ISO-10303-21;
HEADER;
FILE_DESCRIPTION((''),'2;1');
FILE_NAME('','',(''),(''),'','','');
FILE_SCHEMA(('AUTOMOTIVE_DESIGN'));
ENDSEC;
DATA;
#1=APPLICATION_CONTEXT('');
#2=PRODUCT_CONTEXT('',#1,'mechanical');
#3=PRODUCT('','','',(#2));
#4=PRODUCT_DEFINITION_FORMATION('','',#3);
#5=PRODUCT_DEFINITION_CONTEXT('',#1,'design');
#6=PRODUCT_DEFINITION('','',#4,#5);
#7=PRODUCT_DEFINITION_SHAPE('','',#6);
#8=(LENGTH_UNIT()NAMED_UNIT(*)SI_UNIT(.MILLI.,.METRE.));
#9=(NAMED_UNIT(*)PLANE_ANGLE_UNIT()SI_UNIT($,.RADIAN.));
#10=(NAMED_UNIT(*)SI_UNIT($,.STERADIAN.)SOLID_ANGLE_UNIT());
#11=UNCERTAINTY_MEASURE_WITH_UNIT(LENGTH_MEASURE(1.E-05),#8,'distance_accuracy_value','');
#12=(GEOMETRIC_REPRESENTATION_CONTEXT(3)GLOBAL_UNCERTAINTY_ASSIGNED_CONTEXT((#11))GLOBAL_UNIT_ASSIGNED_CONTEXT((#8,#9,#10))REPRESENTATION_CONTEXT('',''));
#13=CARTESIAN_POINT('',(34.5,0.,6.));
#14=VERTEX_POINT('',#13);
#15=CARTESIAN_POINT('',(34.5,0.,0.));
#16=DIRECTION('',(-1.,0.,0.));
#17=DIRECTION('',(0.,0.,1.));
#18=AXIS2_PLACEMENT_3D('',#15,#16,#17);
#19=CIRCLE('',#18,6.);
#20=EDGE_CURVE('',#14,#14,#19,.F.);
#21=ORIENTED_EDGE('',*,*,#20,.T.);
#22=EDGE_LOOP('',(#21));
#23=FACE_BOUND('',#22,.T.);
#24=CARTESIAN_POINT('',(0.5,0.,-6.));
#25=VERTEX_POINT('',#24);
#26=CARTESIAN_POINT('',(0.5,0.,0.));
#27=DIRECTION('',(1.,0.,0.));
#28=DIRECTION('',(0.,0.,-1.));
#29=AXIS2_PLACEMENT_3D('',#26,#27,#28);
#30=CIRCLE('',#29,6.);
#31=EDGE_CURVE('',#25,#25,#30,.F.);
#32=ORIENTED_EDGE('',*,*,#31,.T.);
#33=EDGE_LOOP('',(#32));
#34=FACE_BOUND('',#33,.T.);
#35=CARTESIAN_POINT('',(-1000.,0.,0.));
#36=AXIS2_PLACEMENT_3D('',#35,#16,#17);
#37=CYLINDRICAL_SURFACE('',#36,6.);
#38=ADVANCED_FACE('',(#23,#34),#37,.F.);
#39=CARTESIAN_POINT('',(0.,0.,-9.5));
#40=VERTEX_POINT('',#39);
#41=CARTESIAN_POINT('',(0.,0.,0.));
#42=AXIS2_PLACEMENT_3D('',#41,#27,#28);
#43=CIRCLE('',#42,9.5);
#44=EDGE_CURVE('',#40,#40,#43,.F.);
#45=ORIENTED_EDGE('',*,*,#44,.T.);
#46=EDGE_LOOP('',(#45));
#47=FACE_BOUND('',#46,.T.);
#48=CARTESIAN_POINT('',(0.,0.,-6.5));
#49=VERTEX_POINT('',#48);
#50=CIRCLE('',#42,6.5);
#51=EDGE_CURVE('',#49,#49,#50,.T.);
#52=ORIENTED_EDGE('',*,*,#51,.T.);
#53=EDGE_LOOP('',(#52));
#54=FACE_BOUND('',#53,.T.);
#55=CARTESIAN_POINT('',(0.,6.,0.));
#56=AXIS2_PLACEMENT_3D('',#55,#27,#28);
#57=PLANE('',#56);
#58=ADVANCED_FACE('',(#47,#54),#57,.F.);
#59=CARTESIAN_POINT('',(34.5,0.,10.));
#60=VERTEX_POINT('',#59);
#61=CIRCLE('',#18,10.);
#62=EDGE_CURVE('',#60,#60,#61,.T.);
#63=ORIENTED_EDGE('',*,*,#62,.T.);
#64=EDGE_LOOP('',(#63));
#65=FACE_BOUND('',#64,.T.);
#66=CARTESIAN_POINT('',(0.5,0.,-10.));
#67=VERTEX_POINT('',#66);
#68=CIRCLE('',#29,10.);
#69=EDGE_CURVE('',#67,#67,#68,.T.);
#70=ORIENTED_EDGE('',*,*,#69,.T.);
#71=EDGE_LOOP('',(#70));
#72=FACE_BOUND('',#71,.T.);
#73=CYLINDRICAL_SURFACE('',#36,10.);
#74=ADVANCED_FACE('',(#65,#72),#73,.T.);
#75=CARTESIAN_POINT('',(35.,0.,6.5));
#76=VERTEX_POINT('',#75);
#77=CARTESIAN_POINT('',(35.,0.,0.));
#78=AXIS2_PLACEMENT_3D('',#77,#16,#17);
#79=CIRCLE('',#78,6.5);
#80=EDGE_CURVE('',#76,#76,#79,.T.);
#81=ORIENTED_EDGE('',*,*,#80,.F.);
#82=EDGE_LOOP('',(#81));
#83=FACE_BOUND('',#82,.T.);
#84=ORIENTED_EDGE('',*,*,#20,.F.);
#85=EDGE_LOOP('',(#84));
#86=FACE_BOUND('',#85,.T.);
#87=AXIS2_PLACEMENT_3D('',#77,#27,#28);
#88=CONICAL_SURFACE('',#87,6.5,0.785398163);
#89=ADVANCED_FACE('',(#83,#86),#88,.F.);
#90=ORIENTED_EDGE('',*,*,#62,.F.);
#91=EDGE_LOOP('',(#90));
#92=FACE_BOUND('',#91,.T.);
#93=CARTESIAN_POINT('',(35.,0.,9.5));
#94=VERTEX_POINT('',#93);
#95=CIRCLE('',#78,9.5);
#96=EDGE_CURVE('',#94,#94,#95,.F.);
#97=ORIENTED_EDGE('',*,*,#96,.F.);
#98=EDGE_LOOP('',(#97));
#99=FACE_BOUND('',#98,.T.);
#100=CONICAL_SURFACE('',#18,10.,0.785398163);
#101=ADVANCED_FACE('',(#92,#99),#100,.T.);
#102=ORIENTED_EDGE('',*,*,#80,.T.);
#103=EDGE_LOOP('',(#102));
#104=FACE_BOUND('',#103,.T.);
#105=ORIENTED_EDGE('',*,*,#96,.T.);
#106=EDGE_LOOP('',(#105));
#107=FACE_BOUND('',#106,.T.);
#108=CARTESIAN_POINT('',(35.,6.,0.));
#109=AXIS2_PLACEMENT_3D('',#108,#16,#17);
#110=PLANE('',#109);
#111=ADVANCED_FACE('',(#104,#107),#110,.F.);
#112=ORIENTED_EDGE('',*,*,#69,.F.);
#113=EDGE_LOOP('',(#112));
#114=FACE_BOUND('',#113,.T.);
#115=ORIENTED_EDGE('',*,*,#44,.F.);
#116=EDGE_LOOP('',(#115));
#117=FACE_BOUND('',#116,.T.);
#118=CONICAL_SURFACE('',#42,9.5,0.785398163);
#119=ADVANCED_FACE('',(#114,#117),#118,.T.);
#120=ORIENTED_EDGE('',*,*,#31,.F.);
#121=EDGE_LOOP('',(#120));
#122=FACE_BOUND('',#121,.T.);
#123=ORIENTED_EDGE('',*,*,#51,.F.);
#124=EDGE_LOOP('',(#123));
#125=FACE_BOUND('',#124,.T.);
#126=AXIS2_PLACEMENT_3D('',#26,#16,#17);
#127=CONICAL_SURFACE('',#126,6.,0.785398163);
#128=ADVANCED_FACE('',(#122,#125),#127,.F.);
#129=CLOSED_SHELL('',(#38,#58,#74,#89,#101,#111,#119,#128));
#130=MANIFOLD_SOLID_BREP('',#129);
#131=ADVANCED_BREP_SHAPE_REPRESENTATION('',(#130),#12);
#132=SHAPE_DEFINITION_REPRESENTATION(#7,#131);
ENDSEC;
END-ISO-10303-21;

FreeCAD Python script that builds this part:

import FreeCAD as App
import Part
import Sketcher
Q = App.Units.Quantity


def edges_at(feature, points):
    """Names of the edges that pass closest to the given points."""
    edges = feature.Shape.Edges
    near = lambda p: min(range(len(edges)), key=lambda i: edges[i].distToShape(Part.Vertex(*p))[0])
    return sorted({f"Edge{near(p) + 1}" for p in points})

doc = App.newDocument("Part")
body = doc.addObject("PartDesign::Body", "Body")

sketch1 = body.newObject("Sketcher::SketchObject", "Sketch")
sketch1.AttachmentSupport = (doc.getObject("XY_Plane"), [""])
sketch1.MapMode = "FlatFace"
sketch1.addGeometry(Part.LineSegment(App.Vector(0, 10, 0), App.Vector(0, 6, 0)), False)
sketch1.addGeometry(Part.LineSegment(App.Vector(0, 6, 0), App.Vector(35, 6, 0)), False)
sketch1.addGeometry(Part.LineSegment(App.Vector(35, 6, 0), App.Vector(35, 10, 0)), False)
sketch1.addGeometry(Part.LineSegment(App.Vector(35, 10, 0), App.Vector(0, 10, 0)), False)
sketch1.addConstraint(Sketcher.Constraint("Coincident", 0, 2, 1, 1))
sketch1.addConstraint(Sketcher.Constraint("Coincident", 1, 2, 2, 1))
sketch1.addConstraint(Sketcher.Constraint("Coincident", 2, 2, 3, 1))
sketch1.addConstraint(Sketcher.Constraint("Coincident", 3, 2, 0, 1))
sketch1.addConstraint(Sketcher.Constraint("Vertical", 0))
sketch1.addConstraint(Sketcher.Constraint("Horizontal", 1))
sketch1.addConstraint(Sketcher.Constraint("Vertical", 2))
sketch1.addConstraint(Sketcher.Constraint("Horizontal", 3))
sketch1.addConstraint(Sketcher.Constraint("PointOnObject", 0, 2, -2))
sketch1.addConstraint(Sketcher.Constraint("DistanceX", 1, 1, 1, 2, Q("35 mm")))
sketch1.addConstraint(Sketcher.Constraint("DistanceY", 0, 2, 0, 1, Q("4 mm")))
sketch1.addConstraint(Sketcher.Constraint("DistanceY", -1, 1, 0, 2, Q("6 mm")))
revolution = body.newObject("PartDesign::Revolution", "Revolution")
revolution.Profile = sketch1
revolution.ReferenceAxis = (sketch1, ["H_Axis"])
revolution.Angle = 360
doc.recompute()

chamfer = body.newObject("PartDesign::Chamfer", "Chamfer")
chamfer.Base = (revolution, edges_at(revolution, [
    (0, -6, 0),
    (35, -6, 0),
    (35, -10, 0),
    (0, -10, 0),
]))
chamfer.Size = 0.5

doc.recompute()
